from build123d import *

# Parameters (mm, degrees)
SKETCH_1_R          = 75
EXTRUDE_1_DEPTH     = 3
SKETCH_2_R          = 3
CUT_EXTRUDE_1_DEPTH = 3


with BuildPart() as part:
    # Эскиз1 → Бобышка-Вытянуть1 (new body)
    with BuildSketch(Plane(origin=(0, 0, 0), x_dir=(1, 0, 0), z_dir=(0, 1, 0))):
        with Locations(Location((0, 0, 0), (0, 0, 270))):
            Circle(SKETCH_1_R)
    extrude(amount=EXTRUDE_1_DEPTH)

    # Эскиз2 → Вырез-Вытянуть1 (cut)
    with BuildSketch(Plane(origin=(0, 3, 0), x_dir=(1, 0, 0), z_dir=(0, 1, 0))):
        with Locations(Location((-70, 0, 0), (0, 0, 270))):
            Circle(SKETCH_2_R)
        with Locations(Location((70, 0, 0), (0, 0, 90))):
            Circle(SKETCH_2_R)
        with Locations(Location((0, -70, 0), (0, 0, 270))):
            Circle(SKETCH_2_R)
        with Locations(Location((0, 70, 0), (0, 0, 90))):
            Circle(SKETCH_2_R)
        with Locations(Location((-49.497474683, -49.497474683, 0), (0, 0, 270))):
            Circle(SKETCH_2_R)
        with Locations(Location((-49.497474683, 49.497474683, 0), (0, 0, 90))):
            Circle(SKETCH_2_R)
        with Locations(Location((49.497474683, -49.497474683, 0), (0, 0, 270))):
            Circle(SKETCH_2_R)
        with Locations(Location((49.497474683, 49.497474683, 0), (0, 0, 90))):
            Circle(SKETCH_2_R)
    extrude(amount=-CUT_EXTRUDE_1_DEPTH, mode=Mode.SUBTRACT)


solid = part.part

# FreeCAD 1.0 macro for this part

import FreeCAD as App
import Part
import Sketcher
Q = App.Units.Quantity

doc = App.newDocument("Part")
body = doc.addObject("PartDesign::Body", "Body")

sketch1 = doc.addObject("Sketcher::SketchObject", "Sketch")
body.addObject(sketch1)
sketch1.AttachmentSupport = (doc.XZ_Plane, [""])
sketch1.MapMode = "FlatFace"
sketch1.addGeometry(Part.Circle(App.Vector(0, 0, 0), App.Vector(0, 0, 1), 75), False)
sketch1.addConstraint(Sketcher.Constraint("Coincident", 0, 3, -1, 1))
sketch1.addConstraint(Sketcher.Constraint("Diameter", 0, Q("150 mm")))
pad1 = doc.addObject("PartDesign::Pad", "Pad")
body.addObject(pad1)
pad1.Profile = sketch1
pad1.Length = 3
pad1.Reversed = True

sketch2 = doc.addObject("Sketcher::SketchObject", "Sketch001")
body.addObject(sketch2)
sketch2.AttachmentSupport = (doc.XZ_Plane, [""])
sketch2.MapMode = "FlatFace"
sketch2.AttachmentOffset = App.Placement(App.Vector(0, 0, -3), App.Rotation())
sketch2.addGeometry(Part.Circle(App.Vector(-70, 0, 0), App.Vector(0, 0, 1), 3), False)
sketch2.addGeometry(Part.Circle(App.Vector(70, 0, 0), App.Vector(0, 0, 1), 3), False)
sketch2.addGeometry(Part.Circle(App.Vector(0, 70, 0), App.Vector(0, 0, 1), 3), False)
sketch2.addGeometry(Part.Circle(App.Vector(0, -70, 0), App.Vector(0, 0, 1), 3), False)
sketch2.addGeometry(Part.Circle(App.Vector(-49.5, 49.5, 0), App.Vector(0, 0, 1), 3), False)
sketch2.addGeometry(Part.Circle(App.Vector(-49.5, -49.5, 0), App.Vector(0, 0, 1), 3), False)
sketch2.addGeometry(Part.Circle(App.Vector(49.5, 49.5, 0), App.Vector(0, 0, 1), 3), False)
sketch2.addGeometry(Part.Circle(App.Vector(49.5, -49.5, 0), App.Vector(0, 0, 1), 3), False)
sketch2.addConstraint(Sketcher.Constraint("Equal", 0, 1))
sketch2.addConstraint(Sketcher.Constraint("Equal", 1, 2))
sketch2.addConstraint(Sketcher.Constraint("Equal", 2, 3))
sketch2.addConstraint(Sketcher.Constraint("Equal", 3, 4))
sketch2.addConstraint(Sketcher.Constraint("Equal", 4, 5))
sketch2.addConstraint(Sketcher.Constraint("Equal", 5, 6))
sketch2.addConstraint(Sketcher.Constraint("Equal", 6, 7))
sketch2.addConstraint(Sketcher.Constraint("Symmetric", 0, 3, 1, 3, -1, 1))
sketch2.addConstraint(Sketcher.Constraint("Symmetric", 2, 3, 3, 3, -1, 1))
sketch2.addConstraint(Sketcher.Constraint("Symmetric", 5, 3, 6, 3, -1, 1))
sketch2.addConstraint(Sketcher.Constraint("Symmetric", 4, 3, 7, 3, -1, 1))
sketch2.addConstraint(Sketcher.Constraint("Symmetric", 4, 3, 6, 3, -2))
sketch2.addConstraint(Sketcher.Constraint("PointOnObject", 0, 3, -1))
sketch2.addConstraint(Sketcher.Constraint("PointOnObject", 2, 3, -2))
sketch2.addConstraint(Sketcher.Constraint("Diameter", 0, Q("6 mm")))
sketch2.addConstraint(Sketcher.Constraint("DistanceX", 0, 3, -1, 1, Q("70 mm")))
sketch2.addConstraint(Sketcher.Constraint("DistanceY", -1, 1, 2, 3, Q("70 mm")))
sketch2.addConstraint(Sketcher.Constraint("DistanceY", 5, 3, 4, 3, Q("98.994949 mm")))
sketch2.addConstraint(Sketcher.Constraint("DistanceX", 4, 3, 6, 3, Q("98.994949 mm")))
pocket1 = doc.addObject("PartDesign::Pocket", "Pocket")
body.addObject(pocket1)
pocket1.Profile = sketch2
pocket1.Length = 3
pocket1.Reversed = True

doc.recompute()
